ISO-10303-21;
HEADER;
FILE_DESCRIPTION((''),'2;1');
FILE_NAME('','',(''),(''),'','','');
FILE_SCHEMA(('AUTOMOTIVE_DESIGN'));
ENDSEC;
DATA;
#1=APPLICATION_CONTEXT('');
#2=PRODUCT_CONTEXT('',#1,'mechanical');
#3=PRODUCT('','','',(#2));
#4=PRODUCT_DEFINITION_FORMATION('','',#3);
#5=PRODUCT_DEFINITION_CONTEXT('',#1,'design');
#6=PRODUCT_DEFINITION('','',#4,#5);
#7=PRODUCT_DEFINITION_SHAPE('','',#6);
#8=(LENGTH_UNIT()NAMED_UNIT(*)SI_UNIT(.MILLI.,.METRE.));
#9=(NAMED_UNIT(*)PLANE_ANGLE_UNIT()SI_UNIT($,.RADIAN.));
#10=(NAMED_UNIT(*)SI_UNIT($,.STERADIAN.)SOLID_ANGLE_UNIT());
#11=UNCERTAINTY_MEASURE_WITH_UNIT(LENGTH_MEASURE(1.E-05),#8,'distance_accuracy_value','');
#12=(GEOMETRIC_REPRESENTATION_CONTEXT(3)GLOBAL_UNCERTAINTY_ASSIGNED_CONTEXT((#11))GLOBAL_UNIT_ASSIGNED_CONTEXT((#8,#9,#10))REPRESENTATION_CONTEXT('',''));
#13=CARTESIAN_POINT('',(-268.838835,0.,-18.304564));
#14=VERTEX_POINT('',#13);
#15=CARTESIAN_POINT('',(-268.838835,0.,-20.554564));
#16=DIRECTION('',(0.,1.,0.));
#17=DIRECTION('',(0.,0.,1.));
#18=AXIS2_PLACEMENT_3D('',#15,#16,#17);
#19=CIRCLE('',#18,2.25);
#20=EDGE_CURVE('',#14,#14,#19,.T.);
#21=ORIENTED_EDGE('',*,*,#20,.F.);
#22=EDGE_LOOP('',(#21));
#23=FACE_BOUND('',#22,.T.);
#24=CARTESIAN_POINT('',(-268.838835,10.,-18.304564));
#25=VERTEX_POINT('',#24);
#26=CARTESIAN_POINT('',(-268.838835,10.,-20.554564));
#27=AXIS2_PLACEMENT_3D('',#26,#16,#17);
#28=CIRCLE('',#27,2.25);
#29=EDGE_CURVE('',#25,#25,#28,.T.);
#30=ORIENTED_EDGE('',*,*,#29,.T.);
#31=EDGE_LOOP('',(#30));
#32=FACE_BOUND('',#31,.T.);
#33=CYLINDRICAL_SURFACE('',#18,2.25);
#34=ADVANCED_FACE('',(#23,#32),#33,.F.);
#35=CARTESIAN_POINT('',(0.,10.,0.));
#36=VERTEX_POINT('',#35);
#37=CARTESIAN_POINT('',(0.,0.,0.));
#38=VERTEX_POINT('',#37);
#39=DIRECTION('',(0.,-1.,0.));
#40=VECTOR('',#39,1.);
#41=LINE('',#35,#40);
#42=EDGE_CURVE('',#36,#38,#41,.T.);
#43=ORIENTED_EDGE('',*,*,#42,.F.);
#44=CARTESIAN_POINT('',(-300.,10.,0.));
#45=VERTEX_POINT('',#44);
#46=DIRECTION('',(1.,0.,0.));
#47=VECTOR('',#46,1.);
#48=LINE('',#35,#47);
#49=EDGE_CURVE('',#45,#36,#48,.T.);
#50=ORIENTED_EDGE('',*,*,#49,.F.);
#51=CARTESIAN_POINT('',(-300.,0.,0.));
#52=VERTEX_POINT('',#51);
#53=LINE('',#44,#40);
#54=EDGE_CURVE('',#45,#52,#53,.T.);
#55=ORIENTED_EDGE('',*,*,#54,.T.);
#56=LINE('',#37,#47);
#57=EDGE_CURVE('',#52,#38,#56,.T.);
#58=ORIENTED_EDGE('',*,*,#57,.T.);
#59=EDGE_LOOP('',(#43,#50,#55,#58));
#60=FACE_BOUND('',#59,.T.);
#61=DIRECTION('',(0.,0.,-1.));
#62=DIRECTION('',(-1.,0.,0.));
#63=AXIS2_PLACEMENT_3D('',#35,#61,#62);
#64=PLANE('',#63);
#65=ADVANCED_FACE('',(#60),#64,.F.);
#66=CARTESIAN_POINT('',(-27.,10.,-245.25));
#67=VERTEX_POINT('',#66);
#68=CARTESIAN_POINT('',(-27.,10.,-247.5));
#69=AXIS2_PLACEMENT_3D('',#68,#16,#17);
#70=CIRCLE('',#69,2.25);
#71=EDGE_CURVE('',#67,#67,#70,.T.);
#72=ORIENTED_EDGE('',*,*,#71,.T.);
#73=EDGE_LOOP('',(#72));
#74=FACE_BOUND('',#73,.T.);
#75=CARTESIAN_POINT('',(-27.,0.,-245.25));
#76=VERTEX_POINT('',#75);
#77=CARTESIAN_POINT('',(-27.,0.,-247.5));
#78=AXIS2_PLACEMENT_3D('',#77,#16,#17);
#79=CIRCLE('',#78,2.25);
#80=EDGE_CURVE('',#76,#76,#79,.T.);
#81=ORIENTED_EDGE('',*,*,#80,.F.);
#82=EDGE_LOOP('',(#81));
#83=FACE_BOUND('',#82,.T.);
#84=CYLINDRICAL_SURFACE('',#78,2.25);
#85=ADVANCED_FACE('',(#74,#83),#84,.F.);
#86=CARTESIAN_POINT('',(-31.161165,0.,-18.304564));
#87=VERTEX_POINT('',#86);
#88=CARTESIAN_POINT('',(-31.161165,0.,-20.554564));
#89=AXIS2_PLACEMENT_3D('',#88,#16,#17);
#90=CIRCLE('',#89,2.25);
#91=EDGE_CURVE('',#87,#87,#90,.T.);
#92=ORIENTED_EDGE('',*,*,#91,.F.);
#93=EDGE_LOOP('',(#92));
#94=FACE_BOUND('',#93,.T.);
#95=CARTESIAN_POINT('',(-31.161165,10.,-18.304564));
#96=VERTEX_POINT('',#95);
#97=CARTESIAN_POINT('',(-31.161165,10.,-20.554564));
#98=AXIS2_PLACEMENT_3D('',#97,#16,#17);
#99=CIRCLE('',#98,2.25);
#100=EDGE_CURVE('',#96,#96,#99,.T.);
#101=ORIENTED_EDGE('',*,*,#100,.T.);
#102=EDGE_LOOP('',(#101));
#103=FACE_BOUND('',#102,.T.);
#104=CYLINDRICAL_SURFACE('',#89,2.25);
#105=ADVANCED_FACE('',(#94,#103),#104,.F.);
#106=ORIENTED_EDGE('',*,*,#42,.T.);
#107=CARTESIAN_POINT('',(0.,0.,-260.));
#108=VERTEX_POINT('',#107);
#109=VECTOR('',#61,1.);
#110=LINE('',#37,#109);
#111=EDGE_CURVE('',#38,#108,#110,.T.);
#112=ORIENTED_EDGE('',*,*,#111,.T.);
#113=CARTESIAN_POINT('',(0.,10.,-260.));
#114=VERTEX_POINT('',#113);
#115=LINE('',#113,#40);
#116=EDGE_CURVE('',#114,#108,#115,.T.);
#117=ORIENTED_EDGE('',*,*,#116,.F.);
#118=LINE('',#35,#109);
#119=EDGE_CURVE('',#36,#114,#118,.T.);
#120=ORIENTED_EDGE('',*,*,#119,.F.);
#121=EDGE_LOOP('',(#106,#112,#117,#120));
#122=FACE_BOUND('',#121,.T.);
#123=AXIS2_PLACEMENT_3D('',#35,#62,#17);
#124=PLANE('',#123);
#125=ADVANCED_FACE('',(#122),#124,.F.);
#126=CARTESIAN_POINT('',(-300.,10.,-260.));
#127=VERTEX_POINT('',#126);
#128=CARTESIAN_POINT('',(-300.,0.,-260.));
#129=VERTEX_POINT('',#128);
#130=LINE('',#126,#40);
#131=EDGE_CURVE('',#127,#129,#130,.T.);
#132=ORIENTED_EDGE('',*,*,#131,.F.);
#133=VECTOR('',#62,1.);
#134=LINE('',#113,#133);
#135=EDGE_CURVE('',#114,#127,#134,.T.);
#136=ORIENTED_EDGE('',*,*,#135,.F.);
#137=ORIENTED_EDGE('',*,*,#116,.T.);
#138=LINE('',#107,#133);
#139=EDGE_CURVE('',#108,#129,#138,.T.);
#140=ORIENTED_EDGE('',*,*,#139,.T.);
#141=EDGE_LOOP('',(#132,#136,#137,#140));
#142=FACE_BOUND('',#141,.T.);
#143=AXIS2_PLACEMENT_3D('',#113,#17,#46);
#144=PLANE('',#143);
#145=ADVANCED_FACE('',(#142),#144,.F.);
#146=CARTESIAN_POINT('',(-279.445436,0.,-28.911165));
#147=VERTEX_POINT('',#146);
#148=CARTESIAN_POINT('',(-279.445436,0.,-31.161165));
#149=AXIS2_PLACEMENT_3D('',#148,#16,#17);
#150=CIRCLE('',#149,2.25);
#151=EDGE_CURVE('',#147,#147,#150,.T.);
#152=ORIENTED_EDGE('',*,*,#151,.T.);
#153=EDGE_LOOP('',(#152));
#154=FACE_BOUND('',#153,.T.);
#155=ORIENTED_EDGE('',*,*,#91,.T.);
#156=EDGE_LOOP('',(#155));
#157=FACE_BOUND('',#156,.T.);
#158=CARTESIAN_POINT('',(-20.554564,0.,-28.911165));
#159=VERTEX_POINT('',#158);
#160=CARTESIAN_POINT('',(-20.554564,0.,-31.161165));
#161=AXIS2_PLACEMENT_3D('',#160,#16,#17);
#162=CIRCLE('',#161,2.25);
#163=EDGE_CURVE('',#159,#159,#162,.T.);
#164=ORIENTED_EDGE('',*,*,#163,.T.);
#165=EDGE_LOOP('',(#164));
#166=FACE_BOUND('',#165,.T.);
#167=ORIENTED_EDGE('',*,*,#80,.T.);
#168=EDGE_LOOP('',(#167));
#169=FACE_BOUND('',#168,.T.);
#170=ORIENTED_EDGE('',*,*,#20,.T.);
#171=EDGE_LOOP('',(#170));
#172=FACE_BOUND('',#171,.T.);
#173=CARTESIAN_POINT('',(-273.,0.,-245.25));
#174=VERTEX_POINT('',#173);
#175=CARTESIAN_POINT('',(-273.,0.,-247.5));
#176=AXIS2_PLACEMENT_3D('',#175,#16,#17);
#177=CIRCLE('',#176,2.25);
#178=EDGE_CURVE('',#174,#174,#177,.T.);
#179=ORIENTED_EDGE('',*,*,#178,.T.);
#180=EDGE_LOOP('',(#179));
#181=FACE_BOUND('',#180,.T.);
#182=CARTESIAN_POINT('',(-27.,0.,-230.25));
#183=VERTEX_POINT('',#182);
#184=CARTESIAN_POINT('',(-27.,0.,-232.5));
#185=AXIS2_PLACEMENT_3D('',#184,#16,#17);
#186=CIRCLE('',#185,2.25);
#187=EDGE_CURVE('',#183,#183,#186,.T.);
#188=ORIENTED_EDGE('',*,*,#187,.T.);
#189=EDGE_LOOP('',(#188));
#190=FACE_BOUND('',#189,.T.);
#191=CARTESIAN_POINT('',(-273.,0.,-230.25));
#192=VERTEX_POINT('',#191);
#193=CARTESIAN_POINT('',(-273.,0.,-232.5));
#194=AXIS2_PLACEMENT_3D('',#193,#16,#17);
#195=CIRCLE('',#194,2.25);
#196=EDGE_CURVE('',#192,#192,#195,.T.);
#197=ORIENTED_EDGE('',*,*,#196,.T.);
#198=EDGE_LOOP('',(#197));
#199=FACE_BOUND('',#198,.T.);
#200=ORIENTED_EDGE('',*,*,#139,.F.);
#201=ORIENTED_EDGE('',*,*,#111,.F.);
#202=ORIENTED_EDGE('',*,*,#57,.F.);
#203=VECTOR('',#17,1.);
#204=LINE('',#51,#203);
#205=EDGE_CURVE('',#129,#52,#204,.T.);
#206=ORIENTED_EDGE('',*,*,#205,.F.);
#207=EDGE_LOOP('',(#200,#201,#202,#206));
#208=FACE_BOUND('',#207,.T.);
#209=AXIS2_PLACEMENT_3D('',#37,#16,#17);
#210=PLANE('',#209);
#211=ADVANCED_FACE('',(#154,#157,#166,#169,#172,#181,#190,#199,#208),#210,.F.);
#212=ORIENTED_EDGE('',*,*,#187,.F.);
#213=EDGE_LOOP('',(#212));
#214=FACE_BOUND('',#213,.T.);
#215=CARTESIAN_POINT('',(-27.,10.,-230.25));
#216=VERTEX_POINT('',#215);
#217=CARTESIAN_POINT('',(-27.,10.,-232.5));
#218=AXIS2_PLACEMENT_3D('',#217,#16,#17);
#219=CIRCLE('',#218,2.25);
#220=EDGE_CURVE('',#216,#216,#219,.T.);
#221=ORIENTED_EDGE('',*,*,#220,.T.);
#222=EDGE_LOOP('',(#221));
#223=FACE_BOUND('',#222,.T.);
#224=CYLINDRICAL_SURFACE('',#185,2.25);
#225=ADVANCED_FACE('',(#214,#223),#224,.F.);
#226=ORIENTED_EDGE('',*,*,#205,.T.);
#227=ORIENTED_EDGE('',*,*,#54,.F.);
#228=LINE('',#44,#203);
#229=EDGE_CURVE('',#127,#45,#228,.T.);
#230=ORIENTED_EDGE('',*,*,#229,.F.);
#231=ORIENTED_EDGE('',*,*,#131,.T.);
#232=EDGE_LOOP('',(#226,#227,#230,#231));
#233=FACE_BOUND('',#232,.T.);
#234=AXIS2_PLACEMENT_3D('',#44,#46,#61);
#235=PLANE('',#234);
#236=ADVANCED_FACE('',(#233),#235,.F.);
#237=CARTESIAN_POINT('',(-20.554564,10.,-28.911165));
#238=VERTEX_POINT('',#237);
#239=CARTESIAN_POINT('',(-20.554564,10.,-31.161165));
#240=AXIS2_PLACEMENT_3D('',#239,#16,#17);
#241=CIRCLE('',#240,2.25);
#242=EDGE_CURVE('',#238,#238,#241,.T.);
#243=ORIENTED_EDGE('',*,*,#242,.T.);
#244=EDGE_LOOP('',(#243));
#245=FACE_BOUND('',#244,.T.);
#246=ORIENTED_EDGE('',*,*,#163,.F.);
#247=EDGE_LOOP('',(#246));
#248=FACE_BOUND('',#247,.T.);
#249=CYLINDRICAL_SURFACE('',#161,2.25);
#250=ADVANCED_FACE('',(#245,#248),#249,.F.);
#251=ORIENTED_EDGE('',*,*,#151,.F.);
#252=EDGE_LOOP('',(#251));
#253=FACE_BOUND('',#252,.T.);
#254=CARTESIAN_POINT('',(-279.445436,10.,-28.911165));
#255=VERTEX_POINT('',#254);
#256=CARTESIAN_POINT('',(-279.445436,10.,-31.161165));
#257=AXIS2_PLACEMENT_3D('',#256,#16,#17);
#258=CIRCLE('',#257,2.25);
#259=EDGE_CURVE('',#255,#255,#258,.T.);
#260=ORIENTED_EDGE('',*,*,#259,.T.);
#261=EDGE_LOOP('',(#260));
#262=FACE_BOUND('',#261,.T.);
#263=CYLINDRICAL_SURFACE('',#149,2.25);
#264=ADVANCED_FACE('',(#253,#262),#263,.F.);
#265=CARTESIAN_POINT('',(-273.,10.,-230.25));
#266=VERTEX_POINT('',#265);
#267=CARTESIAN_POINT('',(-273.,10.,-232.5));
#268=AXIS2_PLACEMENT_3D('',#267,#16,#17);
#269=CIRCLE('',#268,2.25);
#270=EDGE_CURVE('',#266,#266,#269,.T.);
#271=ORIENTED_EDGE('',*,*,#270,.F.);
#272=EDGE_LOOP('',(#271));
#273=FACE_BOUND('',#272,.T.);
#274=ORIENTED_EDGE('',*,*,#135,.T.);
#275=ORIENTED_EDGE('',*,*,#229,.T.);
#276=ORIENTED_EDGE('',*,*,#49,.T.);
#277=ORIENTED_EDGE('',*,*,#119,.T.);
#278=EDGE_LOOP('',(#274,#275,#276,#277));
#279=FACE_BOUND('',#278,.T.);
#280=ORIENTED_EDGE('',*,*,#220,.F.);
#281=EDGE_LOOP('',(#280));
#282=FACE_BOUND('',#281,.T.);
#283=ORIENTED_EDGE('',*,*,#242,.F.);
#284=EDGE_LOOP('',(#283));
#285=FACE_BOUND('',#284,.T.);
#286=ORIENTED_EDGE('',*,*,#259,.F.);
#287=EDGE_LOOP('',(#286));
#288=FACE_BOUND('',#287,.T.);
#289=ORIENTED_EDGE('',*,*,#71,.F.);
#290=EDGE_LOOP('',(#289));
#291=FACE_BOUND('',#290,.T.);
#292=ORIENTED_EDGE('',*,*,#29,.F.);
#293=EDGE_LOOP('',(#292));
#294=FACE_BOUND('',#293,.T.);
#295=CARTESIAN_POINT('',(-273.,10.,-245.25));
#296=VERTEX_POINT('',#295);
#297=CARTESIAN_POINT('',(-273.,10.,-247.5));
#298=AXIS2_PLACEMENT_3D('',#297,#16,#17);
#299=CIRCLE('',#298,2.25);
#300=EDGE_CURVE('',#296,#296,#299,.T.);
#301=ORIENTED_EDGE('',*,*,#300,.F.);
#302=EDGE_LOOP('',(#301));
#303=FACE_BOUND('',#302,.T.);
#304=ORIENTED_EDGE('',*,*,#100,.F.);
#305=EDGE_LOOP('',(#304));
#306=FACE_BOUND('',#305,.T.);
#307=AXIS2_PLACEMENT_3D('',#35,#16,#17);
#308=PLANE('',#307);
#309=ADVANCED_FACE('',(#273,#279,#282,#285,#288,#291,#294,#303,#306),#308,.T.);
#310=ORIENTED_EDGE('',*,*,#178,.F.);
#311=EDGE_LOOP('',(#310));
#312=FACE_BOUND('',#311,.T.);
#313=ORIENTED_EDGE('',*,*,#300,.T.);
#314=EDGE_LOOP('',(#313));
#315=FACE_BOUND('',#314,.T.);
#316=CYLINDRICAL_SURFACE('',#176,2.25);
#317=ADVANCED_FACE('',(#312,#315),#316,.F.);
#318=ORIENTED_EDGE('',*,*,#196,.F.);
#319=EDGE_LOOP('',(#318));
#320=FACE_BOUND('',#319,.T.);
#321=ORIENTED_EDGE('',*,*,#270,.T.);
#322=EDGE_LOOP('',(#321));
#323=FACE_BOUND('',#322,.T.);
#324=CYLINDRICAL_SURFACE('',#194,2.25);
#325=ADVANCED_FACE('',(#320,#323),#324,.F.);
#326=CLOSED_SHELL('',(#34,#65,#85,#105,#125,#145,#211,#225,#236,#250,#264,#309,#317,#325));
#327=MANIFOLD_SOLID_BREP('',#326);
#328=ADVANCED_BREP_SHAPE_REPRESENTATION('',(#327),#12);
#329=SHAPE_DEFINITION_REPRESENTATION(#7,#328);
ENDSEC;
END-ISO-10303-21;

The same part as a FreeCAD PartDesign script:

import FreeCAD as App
import Part
import Sketcher
Q = App.Units.Quantity

doc = App.newDocument("Part")
params = doc.addObject("Spreadsheet::Sheet", "Params")
for row, (alias, value) in enumerate([
    ("sketch1_width", "300 mm"),
    ("sketch1_height", "260 mm"),
    ("pad1_length", "10 mm"),
    ("sketch2_diameter", "4.5 mm"),
    ("pocket1_length", "10 mm"),
], start=1):
    params.set(f"A{row}", alias)
    params.set(f"B{row}", "=" + value)
    params.setAlias(f"B{row}", alias)

body = doc.addObject("PartDesign::Body", "Body")

# Sketch on XZ plane
sketch1 = body.newObject("Sketcher::SketchObject", "Sketch")
sketch1.AttachmentSupport = (doc.getObject("XZ_Plane"), [""])
sketch1.MapMode = "FlatFace"
sketch1.addGeometry(Part.LineSegment(App.Vector(-300, -260, 0), App.Vector(-300, 0, 0)), False)
sketch1.addGeometry(Part.LineSegment(App.Vector(-300, 0, 0), App.Vector(0, 0, 0)), False)
sketch1.addGeometry(Part.LineSegment(App.Vector(0, 0, 0), App.Vector(0, -260, 0)), False)
sketch1.addGeometry(Part.LineSegment(App.Vector(0, -260, 0), App.Vector(-300, -260, 0)), False)
sketch1.addConstraint(Sketcher.Constraint("Coincident", 0, 2, 1, 1))
sketch1.addConstraint(Sketcher.Constraint("Coincident", 1, 2, 2, 1))
sketch1.addConstraint(Sketcher.Constraint("Coincident", 2, 2, 3, 1))
sketch1.addConstraint(Sketcher.Constraint("Coincident", 3, 2, 0, 1))
sketch1.addConstraint(Sketcher.Constraint("Vertical", 0))
sketch1.addConstraint(Sketcher.Constraint("Horizontal", 1))
sketch1.addConstraint(Sketcher.Constraint("Vertical", 2))
sketch1.addConstraint(Sketcher.Constraint("Horizontal", 3))
sketch1.addConstraint(Sketcher.Constraint("Coincident", 1, 2, -1, 1))
sketch1.addConstraint(Sketcher.Constraint("DistanceX", 1, 1, 1, 2, Q("300 mm")))
sketch1.addConstraint(Sketcher.Constraint("DistanceY", 0, 1, 0, 2, Q("260 mm")))
sketch1.setExpression("Constraints[9]", "Params.sketch1_width")
sketch1.setExpression("Constraints[10]", "Params.sketch1_height")
pad1 = body.newObject("PartDesign::Pad", "Pad")
pad1.Profile = sketch1
pad1.setExpression("Length", "Params.pad1_length")
pad1.Reversed = True

# Sketch on XZ plane
sketch2 = body.newObject("Sketcher::SketchObject", "Sketch001")
sketch2.AttachmentSupport = (doc.getObject("XZ_Plane"), [""])
sketch2.MapMode = "FlatFace"
sketch2.AttachmentOffset = App.Placement(App.Vector(0, 0, -10), App.Rotation())
sketch2.addGeometry(Part.Circle(App.Vector(-268.8, -20.6, 0), App.Vector(0, 0, 1), 2.2), False)
sketch2.addGeometry(Part.Circle(App.Vector(-279.4, -31.2, 0), App.Vector(0, 0, 1), 2.2), False)
sketch2.addGeometry(Part.Circle(App.Vector(-20.6, -31.2, 0), App.Vector(0, 0, 1), 2.2), False)
sketch2.addGeometry(Part.Circle(App.Vector(-31.2, -20.6, 0), App.Vector(0, 0, 1), 2.2), False)
sketch2.addGeometry(Part.Circle(App.Vector(-273, -247.5, 0), App.Vector(0, 0, 1), 2.2), False)
sketch2.addGeometry(Part.Circle(App.Vector(-273, -232.5, 0), App.Vector(0, 0, 1), 2.2), False)
sketch2.addGeometry(Part.Circle(App.Vector(-27, -232.5, 0), App.Vector(0, 0, 1), 2.2), False)
sketch2.addGeometry(Part.Circle(App.Vector(-27, -247.5, 0), App.Vector(0, 0, 1), 2.2), False)
sketch2.addConstraint(Sketcher.Constraint("Equal", 0, 1))
sketch2.addConstraint(Sketcher.Constraint("Equal", 1, 2))
sketch2.addConstraint(Sketcher.Constraint("Equal", 2, 3))
sketch2.addConstraint(Sketcher.Constraint("Equal", 3, 4))
sketch2.addConstraint(Sketcher.Constraint("Equal", 4, 5))
sketch2.addConstraint(Sketcher.Constraint("Equal", 5, 6))
sketch2.addConstraint(Sketcher.Constraint("Equal", 6, 7))
sketch2.addConstraint(Sketcher.Constraint("Horizontal", 1, 3, 2, 3))
sketch2.addConstraint(Sketcher.Constraint("Horizontal", 0, 3, 3, 3))
sketch2.addConstraint(Sketcher.Constraint("Horizontal", 5, 3, 6, 3))
sketch2.addConstraint(Sketcher.Constraint("Horizontal", 4, 3, 7, 3))
sketch2.addConstraint(Sketcher.Constraint("Vertical", 4, 3, 5, 3))
sketch2.addConstraint(Sketcher.Constraint("Vertical", 6, 3, 7, 3))
sketch2.addConstraint(Sketcher.Constraint("Diameter", 0, Q("4.5 mm")))
sketch2.addConstraint(Sketcher.Constraint("DistanceX", 4, 3, -1, 1, Q("273 mm")))
sketch2.addConstraint(Sketcher.Constraint("DistanceX", 6, 3, -1, 1, Q("27 mm")))
sketch2.addConstraint(Sketcher.Constraint("DistanceY", 4, 3, 5, 3, Q("15 mm")))
sketch2.addConstraint(Sketcher.Constraint("DistanceY", 4, 3, -1, 1, Q("247.5 mm")))
sketch2.addConstraint(Sketcher.Constraint("DistanceX", 1, 3, 0, 3, Q("10.606602 mm")))
sketch2.addConstraint(Sketcher.Constraint("DistanceY", 1, 3, 0, 3, Q("10.606602 mm")))
sketch2.addConstraint(Sketcher.Constraint("DistanceX", 3, 3, 2, 3, Q("10.606602 mm")))
sketch2.addConstraint(Sketcher.Constraint("DistanceX", 0, 3, 2, 3, Q("248.284271 mm")))
sketch2.addConstraint(Sketcher.Constraint("DistanceX", 0, 3, -1, 1, Q("268.838835 mm")))
sketch2.addConstraint(Sketcher.Constraint("DistanceY", 0, 3, -1, 1, Q("20.554564 mm")))
sketch2.setExpression("Constraints[13]", "Params.sketch2_diameter")
pocket1 = body.newObject("PartDesign::Pocket", "Pocket")
pocket1.Profile = sketch2
pocket1.setExpression("Length", "Params.pocket1_length")
pocket1.Reversed = True

doc.recompute()
